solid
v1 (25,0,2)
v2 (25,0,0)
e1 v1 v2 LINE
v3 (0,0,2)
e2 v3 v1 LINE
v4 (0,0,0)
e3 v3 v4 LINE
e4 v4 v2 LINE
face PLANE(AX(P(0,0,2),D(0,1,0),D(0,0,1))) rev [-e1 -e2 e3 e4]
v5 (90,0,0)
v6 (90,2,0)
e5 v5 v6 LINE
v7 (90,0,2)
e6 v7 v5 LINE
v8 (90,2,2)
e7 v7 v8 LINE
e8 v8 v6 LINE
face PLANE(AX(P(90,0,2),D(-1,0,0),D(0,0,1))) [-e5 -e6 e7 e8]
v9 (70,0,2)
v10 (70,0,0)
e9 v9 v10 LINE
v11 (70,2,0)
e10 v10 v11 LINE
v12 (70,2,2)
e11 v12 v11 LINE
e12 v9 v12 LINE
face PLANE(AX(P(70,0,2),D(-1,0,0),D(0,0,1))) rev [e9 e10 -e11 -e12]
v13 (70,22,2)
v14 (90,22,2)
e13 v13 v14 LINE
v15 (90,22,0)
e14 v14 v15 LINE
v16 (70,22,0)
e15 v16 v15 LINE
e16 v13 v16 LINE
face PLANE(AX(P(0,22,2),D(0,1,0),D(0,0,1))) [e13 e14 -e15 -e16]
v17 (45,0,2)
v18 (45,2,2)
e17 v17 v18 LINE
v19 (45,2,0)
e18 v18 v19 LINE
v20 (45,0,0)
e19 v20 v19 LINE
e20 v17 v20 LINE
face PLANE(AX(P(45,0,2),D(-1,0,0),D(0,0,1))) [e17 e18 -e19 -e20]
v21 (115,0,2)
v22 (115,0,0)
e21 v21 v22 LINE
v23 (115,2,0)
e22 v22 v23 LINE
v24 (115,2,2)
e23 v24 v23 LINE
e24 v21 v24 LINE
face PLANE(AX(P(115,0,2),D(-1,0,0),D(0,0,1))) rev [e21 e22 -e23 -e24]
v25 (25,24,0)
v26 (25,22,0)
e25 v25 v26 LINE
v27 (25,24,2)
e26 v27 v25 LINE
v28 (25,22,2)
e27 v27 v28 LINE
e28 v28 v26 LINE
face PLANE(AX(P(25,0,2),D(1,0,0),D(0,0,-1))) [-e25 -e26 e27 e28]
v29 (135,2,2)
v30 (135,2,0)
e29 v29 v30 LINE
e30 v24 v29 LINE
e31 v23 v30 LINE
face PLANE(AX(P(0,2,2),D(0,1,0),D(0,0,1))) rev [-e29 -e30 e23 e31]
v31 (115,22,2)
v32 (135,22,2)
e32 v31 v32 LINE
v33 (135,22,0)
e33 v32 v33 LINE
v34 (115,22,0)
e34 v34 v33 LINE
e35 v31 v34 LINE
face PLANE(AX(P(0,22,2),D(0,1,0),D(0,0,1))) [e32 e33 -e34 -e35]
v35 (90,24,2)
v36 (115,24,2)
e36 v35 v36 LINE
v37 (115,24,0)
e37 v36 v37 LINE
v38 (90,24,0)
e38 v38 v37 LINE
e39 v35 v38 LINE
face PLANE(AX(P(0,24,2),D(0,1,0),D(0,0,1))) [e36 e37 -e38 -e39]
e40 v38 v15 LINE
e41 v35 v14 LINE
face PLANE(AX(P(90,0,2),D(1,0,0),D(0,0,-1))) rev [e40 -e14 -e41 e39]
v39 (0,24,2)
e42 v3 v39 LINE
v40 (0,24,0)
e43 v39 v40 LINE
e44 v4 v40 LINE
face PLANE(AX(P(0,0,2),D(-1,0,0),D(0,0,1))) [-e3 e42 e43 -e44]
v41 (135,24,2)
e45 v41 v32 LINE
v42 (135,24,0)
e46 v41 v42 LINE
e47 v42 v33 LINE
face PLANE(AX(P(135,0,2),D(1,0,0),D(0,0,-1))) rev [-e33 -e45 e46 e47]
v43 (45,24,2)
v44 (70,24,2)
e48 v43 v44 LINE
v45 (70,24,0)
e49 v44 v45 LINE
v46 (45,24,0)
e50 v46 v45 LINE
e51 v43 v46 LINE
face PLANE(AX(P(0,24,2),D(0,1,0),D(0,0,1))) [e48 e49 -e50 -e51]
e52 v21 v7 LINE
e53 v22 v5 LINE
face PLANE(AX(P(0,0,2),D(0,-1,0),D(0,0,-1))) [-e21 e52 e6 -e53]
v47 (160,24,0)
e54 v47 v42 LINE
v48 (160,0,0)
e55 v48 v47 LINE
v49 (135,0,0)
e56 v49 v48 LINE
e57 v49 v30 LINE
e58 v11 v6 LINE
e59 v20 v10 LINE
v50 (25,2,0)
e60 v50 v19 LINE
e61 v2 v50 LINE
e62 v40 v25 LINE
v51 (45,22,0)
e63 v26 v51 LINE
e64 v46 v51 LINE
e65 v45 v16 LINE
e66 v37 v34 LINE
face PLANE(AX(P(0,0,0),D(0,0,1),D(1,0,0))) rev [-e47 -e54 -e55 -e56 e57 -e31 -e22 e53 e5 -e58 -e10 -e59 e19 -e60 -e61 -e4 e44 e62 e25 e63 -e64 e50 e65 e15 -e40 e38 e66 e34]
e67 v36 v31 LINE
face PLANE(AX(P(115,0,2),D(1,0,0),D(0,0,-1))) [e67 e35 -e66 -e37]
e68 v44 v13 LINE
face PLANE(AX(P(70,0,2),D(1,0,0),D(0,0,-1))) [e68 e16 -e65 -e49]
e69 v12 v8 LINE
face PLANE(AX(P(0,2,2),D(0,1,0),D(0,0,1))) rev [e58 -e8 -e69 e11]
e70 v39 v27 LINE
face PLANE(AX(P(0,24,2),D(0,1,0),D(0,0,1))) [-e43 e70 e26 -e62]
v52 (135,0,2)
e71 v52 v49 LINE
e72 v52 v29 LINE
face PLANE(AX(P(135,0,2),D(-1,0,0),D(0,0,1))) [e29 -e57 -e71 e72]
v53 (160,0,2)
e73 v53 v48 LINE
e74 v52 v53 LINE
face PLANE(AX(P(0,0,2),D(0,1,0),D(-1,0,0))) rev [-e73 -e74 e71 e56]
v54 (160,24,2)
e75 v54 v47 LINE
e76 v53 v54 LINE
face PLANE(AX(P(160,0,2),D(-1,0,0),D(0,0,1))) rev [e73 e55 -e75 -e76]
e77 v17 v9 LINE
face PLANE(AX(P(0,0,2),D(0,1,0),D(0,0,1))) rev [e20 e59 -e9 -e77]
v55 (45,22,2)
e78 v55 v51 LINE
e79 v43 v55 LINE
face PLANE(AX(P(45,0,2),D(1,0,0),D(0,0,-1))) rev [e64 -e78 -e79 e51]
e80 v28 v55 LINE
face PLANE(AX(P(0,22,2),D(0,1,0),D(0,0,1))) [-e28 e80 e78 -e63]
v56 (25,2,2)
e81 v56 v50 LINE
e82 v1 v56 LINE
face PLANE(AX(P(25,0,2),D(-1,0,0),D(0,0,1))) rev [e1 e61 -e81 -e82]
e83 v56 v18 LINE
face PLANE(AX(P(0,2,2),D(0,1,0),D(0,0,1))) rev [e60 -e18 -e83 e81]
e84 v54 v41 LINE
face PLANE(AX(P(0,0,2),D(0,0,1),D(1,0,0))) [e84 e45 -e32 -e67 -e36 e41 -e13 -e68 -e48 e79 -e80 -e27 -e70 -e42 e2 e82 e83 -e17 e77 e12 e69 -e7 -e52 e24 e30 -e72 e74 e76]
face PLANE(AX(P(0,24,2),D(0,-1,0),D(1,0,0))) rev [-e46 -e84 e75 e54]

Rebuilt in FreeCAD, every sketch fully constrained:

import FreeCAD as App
import Part
import Sketcher
from FreeCAD import Vector
Q = App.Units.Quantity


def add_polygon(sketch, points):
    """Adds a closed chain of lines whose ends are joined by coincident constraints."""
    first, n = sketch.GeometryCount, len(points)
    for a, b in zip(points, points[1:] + points[:1]):
        sketch.addGeometry(Part.LineSegment(App.Vector(*a, 0), App.Vector(*b, 0)), False)
    for i in range(n):
        sketch.addConstraint(Sketcher.Constraint("Coincident", first + i, 2, first + (i + 1) % n, 1))

doc = App.newDocument("Part")
body = doc.addObject("PartDesign::Body", "Body")

# Sketch on XY plane
sketch1 = body.newObject("Sketcher::SketchObject", "Sketch")
sketch1.AttachmentSupport = (doc.getObject("XY_Plane"), [""])
sketch1.MapMode = "FlatFace"
add_polygon(sketch1, [(135, 2), (135, 0), (160, 0), (160, 24), (135, 24), (135, 22), (115, 22), (115, 24), (90, 24), (90, 22), (70, 22), (70, 24), (45, 24), (45, 22), (25, 22), (25, 24), (0, 24), (0, 0), (25, 0), (25, 2), (45, 2), (45, 0), (70, 0), (70, 2), (90, 2), (90, 0), (115, 0), (115, 2)])  # lines 0-27
sketch1.addConstraint([
    Sketcher.Constraint("Vertical", 0),
    Sketcher.Constraint("Horizontal", 1),
    Sketcher.Constraint("Vertical", 2),
    Sketcher.Constraint("Horizontal", 3),
    Sketcher.Constraint("Vertical", 4),
    Sketcher.Constraint("Horizontal", 5),
    Sketcher.Constraint("Vertical", 6),
    Sketcher.Constraint("Horizontal", 7),
    Sketcher.Constraint("Vertical", 8),
    Sketcher.Constraint("Horizontal", 9),
    Sketcher.Constraint("Vertical", 10),
    Sketcher.Constraint("Horizontal", 11),
    Sketcher.Constraint("Vertical", 12),
    Sketcher.Constraint("Horizontal", 13),
    Sketcher.Constraint("Vertical", 14),
    Sketcher.Constraint("Horizontal", 15),
    Sketcher.Constraint("Vertical", 16),
    Sketcher.Constraint("Horizontal", 17),
    Sketcher.Constraint("Vertical", 18),
    Sketcher.Constraint("Horizontal", 19),
    Sketcher.Constraint("Vertical", 20),
    Sketcher.Constraint("Horizontal", 21),
    Sketcher.Constraint("Vertical", 22),
    Sketcher.Constraint("Horizontal", 23),
    Sketcher.Constraint("Vertical", 24),
    Sketcher.Constraint("Horizontal", 25),
    Sketcher.Constraint("Vertical", 26),
    Sketcher.Constraint("Horizontal", 27),
    Sketcher.Constraint("Coincident", 16, 2, -1, 1),
    Sketcher.Constraint("PointOnObject", 0, 2, -1),
    Sketcher.Constraint("PointOnObject", 20, 2, -1),
    Sketcher.Constraint("PointOnObject", 24, 2, -1),
    Sketcher.Constraint("Horizontal", 3, 2, 6, 2),
    Sketcher.Constraint("Horizontal", 5, 2, 8, 2),
    Sketcher.Constraint("Horizontal", 7, 2, 10, 2),
    Sketcher.Constraint("Horizontal", 9, 2, 12, 2),
    Sketcher.Constraint("Horizontal", 11, 2, 14, 2),
    Sketcher.Constraint("Horizontal", 19, 2, 22, 2),
    Sketcher.Constraint("Horizontal", 23, 2, 26, 2),
    Sketcher.Constraint("Vertical", 0, 2, 3, 2),
    Sketcher.Constraint("Vertical", 14, 2, 17, 2),
    Sketcher.Constraint("Vertical", 12, 2, 19, 2),
    Sketcher.Constraint("Vertical", 10, 2, 21, 2),
    Sketcher.Constraint("Vertical", 8, 2, 23, 2),
    Sketcher.Constraint("Vertical", 6, 2, 25, 2),
    Sketcher.Constraint("Equal", 3, 7),
    Sketcher.Constraint("Equal", 5, 9),
    Sketcher.Constraint("Equal", 7, 11),
    Sketcher.Constraint("Equal", 9, 13),
    Sketcher.Constraint("Equal", 11, 15),
    Sketcher.Constraint("Equal", 0, 4),
    Sketcher.Constraint("DistanceX", 1, 1, 1, 2, Q("25 mm")),
    Sketcher.Constraint("DistanceX", 5, 2, 5, 1, Q("20 mm")),
    Sketcher.Constraint("DistanceY", 0, 2, 0, 1, Q("2 mm")),
    Sketcher.Constraint("DistanceY", 2, 1, 2, 2, Q("24 mm")),
])
pad1 = body.newObject("PartDesign::Pad", "Pad")
pad1.Profile = sketch1
pad1.Length = 2

doc.recompute()
